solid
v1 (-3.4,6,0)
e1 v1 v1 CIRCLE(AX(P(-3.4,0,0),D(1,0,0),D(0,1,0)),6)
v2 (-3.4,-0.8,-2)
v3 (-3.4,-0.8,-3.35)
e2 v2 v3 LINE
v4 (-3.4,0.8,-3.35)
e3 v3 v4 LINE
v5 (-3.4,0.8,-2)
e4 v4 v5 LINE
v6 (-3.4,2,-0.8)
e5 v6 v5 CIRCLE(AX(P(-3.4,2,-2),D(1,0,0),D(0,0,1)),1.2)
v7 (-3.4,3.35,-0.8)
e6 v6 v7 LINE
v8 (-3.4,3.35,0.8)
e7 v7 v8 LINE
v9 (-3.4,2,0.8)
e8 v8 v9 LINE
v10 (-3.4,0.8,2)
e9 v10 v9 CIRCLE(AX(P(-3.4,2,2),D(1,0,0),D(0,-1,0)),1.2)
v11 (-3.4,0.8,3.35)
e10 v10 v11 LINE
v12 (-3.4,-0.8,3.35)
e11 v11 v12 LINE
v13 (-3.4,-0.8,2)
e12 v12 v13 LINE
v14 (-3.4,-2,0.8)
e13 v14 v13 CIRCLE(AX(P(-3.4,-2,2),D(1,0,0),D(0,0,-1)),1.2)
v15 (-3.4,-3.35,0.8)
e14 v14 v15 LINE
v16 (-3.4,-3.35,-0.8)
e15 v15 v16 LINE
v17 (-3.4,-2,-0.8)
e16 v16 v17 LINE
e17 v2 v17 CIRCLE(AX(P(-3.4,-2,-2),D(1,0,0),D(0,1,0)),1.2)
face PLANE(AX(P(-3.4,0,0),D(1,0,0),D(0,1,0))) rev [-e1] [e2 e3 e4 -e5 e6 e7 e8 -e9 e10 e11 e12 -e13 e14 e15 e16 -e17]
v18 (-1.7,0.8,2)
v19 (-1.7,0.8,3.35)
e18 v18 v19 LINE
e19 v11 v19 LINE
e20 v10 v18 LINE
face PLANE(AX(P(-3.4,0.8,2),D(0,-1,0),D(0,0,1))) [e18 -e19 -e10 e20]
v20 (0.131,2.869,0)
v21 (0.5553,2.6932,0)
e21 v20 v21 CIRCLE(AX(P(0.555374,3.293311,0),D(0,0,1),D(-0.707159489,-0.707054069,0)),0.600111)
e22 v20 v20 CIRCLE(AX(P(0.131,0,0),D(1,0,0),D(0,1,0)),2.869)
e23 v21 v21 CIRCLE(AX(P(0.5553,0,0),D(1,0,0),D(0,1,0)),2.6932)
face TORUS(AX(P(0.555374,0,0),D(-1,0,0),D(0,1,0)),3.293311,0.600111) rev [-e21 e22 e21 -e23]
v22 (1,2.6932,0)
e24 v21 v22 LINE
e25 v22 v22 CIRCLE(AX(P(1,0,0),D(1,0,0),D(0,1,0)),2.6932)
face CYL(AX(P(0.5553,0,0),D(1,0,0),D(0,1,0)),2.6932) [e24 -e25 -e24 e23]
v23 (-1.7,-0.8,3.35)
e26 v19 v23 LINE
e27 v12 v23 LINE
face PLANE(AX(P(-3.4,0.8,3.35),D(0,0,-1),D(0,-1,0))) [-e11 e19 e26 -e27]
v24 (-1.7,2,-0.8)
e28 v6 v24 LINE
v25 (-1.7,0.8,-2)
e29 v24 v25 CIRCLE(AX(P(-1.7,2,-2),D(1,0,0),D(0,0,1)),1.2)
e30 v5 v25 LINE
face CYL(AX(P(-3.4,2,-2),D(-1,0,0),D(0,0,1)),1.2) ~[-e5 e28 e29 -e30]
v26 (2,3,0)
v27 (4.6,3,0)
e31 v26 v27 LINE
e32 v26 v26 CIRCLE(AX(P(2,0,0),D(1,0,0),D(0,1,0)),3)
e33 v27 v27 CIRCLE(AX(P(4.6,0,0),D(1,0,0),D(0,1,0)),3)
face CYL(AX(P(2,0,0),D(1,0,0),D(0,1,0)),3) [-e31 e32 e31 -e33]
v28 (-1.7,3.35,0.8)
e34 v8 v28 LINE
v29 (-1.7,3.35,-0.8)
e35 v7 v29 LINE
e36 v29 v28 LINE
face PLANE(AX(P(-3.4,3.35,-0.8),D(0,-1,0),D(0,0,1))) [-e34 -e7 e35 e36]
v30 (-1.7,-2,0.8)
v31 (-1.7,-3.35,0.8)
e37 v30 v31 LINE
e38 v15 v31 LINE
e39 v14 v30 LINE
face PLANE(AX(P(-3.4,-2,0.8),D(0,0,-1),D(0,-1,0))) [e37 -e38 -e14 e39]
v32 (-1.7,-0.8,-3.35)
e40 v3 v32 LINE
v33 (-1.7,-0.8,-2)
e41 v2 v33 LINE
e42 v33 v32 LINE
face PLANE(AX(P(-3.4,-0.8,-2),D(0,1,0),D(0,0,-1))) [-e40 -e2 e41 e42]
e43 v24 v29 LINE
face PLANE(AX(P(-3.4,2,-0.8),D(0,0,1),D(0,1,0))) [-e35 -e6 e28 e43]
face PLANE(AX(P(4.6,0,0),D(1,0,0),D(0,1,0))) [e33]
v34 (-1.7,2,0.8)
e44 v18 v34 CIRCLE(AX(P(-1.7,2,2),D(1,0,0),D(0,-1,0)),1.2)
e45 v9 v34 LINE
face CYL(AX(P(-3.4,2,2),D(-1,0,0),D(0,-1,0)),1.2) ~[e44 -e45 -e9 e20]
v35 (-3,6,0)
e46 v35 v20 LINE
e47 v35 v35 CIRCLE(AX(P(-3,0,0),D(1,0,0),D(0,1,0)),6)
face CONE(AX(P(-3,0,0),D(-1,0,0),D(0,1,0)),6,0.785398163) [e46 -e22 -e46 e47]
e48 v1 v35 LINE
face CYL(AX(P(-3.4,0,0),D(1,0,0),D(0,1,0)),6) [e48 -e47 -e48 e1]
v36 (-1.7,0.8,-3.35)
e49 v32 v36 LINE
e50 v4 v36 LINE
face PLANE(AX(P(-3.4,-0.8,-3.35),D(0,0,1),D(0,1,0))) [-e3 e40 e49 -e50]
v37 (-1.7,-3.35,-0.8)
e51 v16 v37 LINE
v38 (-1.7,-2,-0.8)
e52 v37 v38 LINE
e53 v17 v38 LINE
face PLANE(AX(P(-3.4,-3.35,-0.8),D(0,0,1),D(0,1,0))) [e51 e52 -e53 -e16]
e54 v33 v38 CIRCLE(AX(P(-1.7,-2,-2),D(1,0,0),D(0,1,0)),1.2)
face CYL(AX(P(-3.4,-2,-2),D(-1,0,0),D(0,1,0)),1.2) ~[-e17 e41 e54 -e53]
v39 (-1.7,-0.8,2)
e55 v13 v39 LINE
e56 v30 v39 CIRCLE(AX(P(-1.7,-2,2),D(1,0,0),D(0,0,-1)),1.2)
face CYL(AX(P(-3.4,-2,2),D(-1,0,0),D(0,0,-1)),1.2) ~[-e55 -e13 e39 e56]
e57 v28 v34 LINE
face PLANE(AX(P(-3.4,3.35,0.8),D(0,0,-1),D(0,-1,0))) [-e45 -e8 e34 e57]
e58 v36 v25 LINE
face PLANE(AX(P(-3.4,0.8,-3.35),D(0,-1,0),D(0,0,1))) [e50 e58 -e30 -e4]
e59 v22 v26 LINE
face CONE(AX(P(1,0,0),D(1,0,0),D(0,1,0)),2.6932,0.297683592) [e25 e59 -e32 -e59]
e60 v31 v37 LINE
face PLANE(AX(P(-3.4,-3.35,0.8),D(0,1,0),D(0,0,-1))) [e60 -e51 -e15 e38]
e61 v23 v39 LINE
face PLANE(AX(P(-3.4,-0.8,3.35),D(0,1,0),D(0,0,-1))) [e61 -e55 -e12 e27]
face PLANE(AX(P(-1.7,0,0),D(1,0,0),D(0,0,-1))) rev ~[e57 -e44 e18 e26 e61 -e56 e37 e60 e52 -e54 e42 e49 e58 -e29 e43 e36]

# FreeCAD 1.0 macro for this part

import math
import FreeCAD as App
import Part
import Sketcher

V = App.Vector
Q = App.Units.Quantity

doc = App.newDocument("Part")
body = doc.addObject("PartDesign::Body", "Body")

sketch1 = doc.addObject("Sketcher::SketchObject", "Sketch")
body.addObject(sketch1)
sketch1.AttachmentSupport = (doc.XY_Plane, [""])
sketch1.MapMode = "FlatFace"
sketch1.addGeometry(Part.LineSegment(V(-3.4, 0, 0), V(4.6, 0, 0)), False)
sketch1.addGeometry(Part.LineSegment(V(4.6, 0, 0), V(4.6, 3, 0)), False)
sketch1.addGeometry(Part.LineSegment(V(4.6, 3, 0), V(2, 3, 0)), False)
sketch1.addGeometry(Part.LineSegment(V(2, 3, 0), V(1, 2.69, 0)), False)
sketch1.addGeometry(Part.LineSegment(V(1, 2.69, 0), V(0.56, 2.69, 0)), False)
sketch1.addGeometry(Part.ArcOfCircle(Part.Circle(V(0.56, 3.29, 0), V(0, 0, 1), 0.6), math.radians(-135), math.radians(-90)), False)
sketch1.addGeometry(Part.LineSegment(V(0.13, 2.87, 0), V(-3, 6, 0)), False)
sketch1.addGeometry(Part.LineSegment(V(-3, 6, 0), V(-3.4, 6, 0)), False)
sketch1.addGeometry(Part.LineSegment(V(-3.4, 6, 0), V(-3.4, 0, 0)), False)
sketch1.addConstraint(Sketcher.Constraint("Coincident", 0, 2, 1, 1))
sketch1.addConstraint(Sketcher.Constraint("Coincident", 1, 2, 2, 1))
sketch1.addConstraint(Sketcher.Constraint("Coincident", 2, 2, 3, 1))
sketch1.addConstraint(Sketcher.Constraint("Coincident", 3, 2, 4, 1))
sketch1.addConstraint(Sketcher.Constraint("Tangent", 4, 2, 5, 2))
sketch1.addConstraint(Sketcher.Constraint("Tangent", 5, 1, 6, 1))
sketch1.addConstraint(Sketcher.Constraint("Coincident", 6, 2, 7, 1))
sketch1.addConstraint(Sketcher.Constraint("Coincident", 7, 2, 8, 1))
sketch1.addConstraint(Sketcher.Constraint("Coincident", 8, 2, 0, 1))
sketch1.addConstraint(Sketcher.Constraint("Horizontal", 0))
sketch1.addConstraint(Sketcher.Constraint("Vertical", 1))
sketch1.addConstraint(Sketcher.Constraint("Horizontal", 2))
sketch1.addConstraint(Sketcher.Constraint("Horizontal", 4))
sketch1.addConstraint(Sketcher.Constraint("Horizontal", 7))
sketch1.addConstraint(Sketcher.Constraint("Vertical", 8))
sketch1.addConstraint(Sketcher.Constraint("PointOnObject", 0, 2, -1))
sketch1.addConstraint(Sketcher.Constraint("Radius", 5, 0.6))
sketch1.addConstraint(Sketcher.Constraint("DistanceX", 0, 1, 0, 2, 8.0))
sketch1.addConstraint(Sketcher.Constraint("DistanceY", 1, 1, 1, 2, 3.0))
sketch1.addConstraint(Sketcher.Constraint("DistanceY", 8, 2, 8, 1, 6.0))
sketch1.addConstraint(Sketcher.Constraint("Angle", 6, Q("135 deg")))
sketch1.addConstraint(Sketcher.Constraint("DistanceX", 2, 2, 2, 1, 2.6))
sketch1.addConstraint(Sketcher.Constraint("DistanceX", 7, 2, 7, 1, 0.4))
sketch1.addConstraint(Sketcher.Constraint("DistanceX", -1, 1, 2, 2, 2.0))
sketch1.addConstraint(Sketcher.Constraint("DistanceX", -1, 1, 3, 2, 1.0))
sketch1.addConstraint(Sketcher.Constraint("Distance", 3, 1.046))
revolution = doc.addObject("PartDesign::Revolution", "Revolution")
body.addObject(revolution)
revolution.Profile = sketch1
revolution.ReferenceAxis = (sketch1, ["H_Axis"])
revolution.Angle = 360

sketch2 = doc.addObject("Sketcher::SketchObject", "Sketch001")
body.addObject(sketch2)
sketch2.AttachmentSupport = (doc.YZ_Plane, [""])
sketch2.MapMode = "FlatFace"
sketch2.AttachmentOffset = App.Placement(V(0, 0, -3.4), App.Rotation())
sketch2.addGeometry(Part.LineSegment(V(0.8, 3.4, 0), V(-0.8, 3.4, 0)), False)
sketch2.addGeometry(Part.LineSegment(V(-0.8, 3.4, 0), V(-0.8, 2, 0)), False)
sketch2.addGeometry(Part.ArcOfCircle(Part.Circle(V(-2, 2, 0), V(0, 0, 1), 1.2), math.radians(-90), math.radians(0)), False)
sketch2.addGeometry(Part.LineSegment(V(-2, 0.8, 0), V(-3.4, 0.8, 0)), False)
sketch2.addGeometry(Part.LineSegment(V(-3.4, 0.8, 0), V(-3.4, -0.8, 0)), False)
sketch2.addGeometry(Part.LineSegment(V(-3.4, -0.8, 0), V(-2, -0.8, 0)), False)
sketch2.addGeometry(Part.ArcOfCircle(Part.Circle(V(-2, -2, 0), V(0, 0, 1), 1.2), math.radians(0), math.radians(90)), False)
sketch2.addGeometry(Part.LineSegment(V(-0.8, -2, 0), V(-0.8, -3.4, 0)), False)
sketch2.addGeometry(Part.LineSegment(V(-0.8, -3.4, 0), V(0.8, -3.4, 0)), False)
sketch2.addGeometry(Part.LineSegment(V(0.8, -3.4, 0), V(0.8, -2, 0)), False)
sketch2.addGeometry(Part.ArcOfCircle(Part.Circle(V(2, -2, 0), V(0, 0, 1), 1.2), math.radians(90), math.radians(180)), False)
sketch2.addGeometry(Part.LineSegment(V(2, -0.8, 0), V(3.4, -0.8, 0)), False)
sketch2.addGeometry(Part.LineSegment(V(3.4, -0.8, 0), V(3.4, 0.8, 0)), False)
sketch2.addGeometry(Part.LineSegment(V(3.4, 0.8, 0), V(2, 0.8, 0)), False)
sketch2.addGeometry(Part.ArcOfCircle(Part.Circle(V(2, 2, 0), V(0, 0, 1), 1.2), math.radians(180), math.radians(270)), False)
sketch2.addGeometry(Part.LineSegment(V(0.8, 2, 0), V(0.8, 3.4, 0)), False)
sketch2.addConstraint(Sketcher.Constraint("Coincident", 0, 2, 1, 1))
sketch2.addConstraint(Sketcher.Constraint("Tangent", 1, 2, 2, 2))
sketch2.addConstraint(Sketcher.Constraint("Tangent", 2, 1, 3, 1))
sketch2.addConstraint(Sketcher.Constraint("Coincident", 3, 2, 4, 1))
sketch2.addConstraint(Sketcher.Constraint("Coincident", 4, 2, 5, 1))
sketch2.addConstraint(Sketcher.Constraint("Tangent", 5, 2, 6, 2))
sketch2.addConstraint(Sketcher.Constraint("Tangent", 6, 1, 7, 1))
sketch2.addConstraint(Sketcher.Constraint("Coincident", 7, 2, 8, 1))
sketch2.addConstraint(Sketcher.Constraint("Coincident", 8, 2, 9, 1))
sketch2.addConstraint(Sketcher.Constraint("Tangent", 9, 2, 10, 2))
sketch2.addConstraint(Sketcher.Constraint("Tangent", 10, 1, 11, 1))
sketch2.addConstraint(Sketcher.Constraint("Coincident", 11, 2, 12, 1))
sketch2.addConstraint(Sketcher.Constraint("Coincident", 12, 2, 13, 1))
sketch2.addConstraint(Sketcher.Constraint("Tangent", 13, 2, 14, 2))
sketch2.addConstraint(Sketcher.Constraint("Tangent", 14, 1, 15, 1))
sketch2.addConstraint(Sketcher.Constraint("Coincident", 15, 2, 0, 1))
sketch2.addConstraint(Sketcher.Constraint("Horizontal", 0))
sketch2.addConstraint(Sketcher.Constraint("Vertical", 1))
sketch2.addConstraint(Sketcher.Constraint("Horizontal", 3))
sketch2.addConstraint(Sketcher.Constraint("Vertical", 4))
sketch2.addConstraint(Sketcher.Constraint("Horizontal", 5))
sketch2.addConstraint(Sketcher.Constraint("Vertical", 7))
sketch2.addConstraint(Sketcher.Constraint("Horizontal", 8))
sketch2.addConstraint(Sketcher.Constraint("Vertical", 9))
sketch2.addConstraint(Sketcher.Constraint("Horizontal", 11))
sketch2.addConstraint(Sketcher.Constraint("Vertical", 12))
sketch2.addConstraint(Sketcher.Constraint("Horizontal", 13))
sketch2.addConstraint(Sketcher.Constraint("Vertical", 15))
sketch2.addConstraint(Sketcher.Constraint("Equal", 2, 6))
sketch2.addConstraint(Sketcher.Constraint("Equal", 6, 10))
sketch2.addConstraint(Sketcher.Constraint("Equal", 10, 14))
sketch2.addConstraint(Sketcher.Constraint("Symmetric", 2, 3, 10, 3, -1, 1))
sketch2.addConstraint(Sketcher.Constraint("Symmetric", 6, 3, 14, 3, -1, 1))
sketch2.addConstraint(Sketcher.Constraint("Symmetric", 6, 3, 10, 3, -2))
sketch2.addConstraint(Sketcher.Constraint("Equal", 5, 11))
sketch2.addConstraint(Sketcher.Constraint("Equal", 13, 1))
sketch2.addConstraint(Sketcher.Constraint("Equal", 8, 4))
sketch2.addConstraint(Sketcher.Constraint("Equal", 1, 7))
sketch2.addConstraint(Sketcher.Constraint("Radius", 2, 1.2))
sketch2.addConstraint(Sketcher.Constraint("DistanceX", 0, 2, 0, 1, 1.6))
sketch2.addConstraint(Sketcher.Constraint("DistanceX", 3, 2, 3, 1, 1.35))
pocket1 = doc.addObject("PartDesign::Pocket", "Pocket")
body.addObject(pocket1)
pocket1.Profile = sketch2
pocket1.Length = 1.7
pocket1.Reversed = True

doc.recompute()
